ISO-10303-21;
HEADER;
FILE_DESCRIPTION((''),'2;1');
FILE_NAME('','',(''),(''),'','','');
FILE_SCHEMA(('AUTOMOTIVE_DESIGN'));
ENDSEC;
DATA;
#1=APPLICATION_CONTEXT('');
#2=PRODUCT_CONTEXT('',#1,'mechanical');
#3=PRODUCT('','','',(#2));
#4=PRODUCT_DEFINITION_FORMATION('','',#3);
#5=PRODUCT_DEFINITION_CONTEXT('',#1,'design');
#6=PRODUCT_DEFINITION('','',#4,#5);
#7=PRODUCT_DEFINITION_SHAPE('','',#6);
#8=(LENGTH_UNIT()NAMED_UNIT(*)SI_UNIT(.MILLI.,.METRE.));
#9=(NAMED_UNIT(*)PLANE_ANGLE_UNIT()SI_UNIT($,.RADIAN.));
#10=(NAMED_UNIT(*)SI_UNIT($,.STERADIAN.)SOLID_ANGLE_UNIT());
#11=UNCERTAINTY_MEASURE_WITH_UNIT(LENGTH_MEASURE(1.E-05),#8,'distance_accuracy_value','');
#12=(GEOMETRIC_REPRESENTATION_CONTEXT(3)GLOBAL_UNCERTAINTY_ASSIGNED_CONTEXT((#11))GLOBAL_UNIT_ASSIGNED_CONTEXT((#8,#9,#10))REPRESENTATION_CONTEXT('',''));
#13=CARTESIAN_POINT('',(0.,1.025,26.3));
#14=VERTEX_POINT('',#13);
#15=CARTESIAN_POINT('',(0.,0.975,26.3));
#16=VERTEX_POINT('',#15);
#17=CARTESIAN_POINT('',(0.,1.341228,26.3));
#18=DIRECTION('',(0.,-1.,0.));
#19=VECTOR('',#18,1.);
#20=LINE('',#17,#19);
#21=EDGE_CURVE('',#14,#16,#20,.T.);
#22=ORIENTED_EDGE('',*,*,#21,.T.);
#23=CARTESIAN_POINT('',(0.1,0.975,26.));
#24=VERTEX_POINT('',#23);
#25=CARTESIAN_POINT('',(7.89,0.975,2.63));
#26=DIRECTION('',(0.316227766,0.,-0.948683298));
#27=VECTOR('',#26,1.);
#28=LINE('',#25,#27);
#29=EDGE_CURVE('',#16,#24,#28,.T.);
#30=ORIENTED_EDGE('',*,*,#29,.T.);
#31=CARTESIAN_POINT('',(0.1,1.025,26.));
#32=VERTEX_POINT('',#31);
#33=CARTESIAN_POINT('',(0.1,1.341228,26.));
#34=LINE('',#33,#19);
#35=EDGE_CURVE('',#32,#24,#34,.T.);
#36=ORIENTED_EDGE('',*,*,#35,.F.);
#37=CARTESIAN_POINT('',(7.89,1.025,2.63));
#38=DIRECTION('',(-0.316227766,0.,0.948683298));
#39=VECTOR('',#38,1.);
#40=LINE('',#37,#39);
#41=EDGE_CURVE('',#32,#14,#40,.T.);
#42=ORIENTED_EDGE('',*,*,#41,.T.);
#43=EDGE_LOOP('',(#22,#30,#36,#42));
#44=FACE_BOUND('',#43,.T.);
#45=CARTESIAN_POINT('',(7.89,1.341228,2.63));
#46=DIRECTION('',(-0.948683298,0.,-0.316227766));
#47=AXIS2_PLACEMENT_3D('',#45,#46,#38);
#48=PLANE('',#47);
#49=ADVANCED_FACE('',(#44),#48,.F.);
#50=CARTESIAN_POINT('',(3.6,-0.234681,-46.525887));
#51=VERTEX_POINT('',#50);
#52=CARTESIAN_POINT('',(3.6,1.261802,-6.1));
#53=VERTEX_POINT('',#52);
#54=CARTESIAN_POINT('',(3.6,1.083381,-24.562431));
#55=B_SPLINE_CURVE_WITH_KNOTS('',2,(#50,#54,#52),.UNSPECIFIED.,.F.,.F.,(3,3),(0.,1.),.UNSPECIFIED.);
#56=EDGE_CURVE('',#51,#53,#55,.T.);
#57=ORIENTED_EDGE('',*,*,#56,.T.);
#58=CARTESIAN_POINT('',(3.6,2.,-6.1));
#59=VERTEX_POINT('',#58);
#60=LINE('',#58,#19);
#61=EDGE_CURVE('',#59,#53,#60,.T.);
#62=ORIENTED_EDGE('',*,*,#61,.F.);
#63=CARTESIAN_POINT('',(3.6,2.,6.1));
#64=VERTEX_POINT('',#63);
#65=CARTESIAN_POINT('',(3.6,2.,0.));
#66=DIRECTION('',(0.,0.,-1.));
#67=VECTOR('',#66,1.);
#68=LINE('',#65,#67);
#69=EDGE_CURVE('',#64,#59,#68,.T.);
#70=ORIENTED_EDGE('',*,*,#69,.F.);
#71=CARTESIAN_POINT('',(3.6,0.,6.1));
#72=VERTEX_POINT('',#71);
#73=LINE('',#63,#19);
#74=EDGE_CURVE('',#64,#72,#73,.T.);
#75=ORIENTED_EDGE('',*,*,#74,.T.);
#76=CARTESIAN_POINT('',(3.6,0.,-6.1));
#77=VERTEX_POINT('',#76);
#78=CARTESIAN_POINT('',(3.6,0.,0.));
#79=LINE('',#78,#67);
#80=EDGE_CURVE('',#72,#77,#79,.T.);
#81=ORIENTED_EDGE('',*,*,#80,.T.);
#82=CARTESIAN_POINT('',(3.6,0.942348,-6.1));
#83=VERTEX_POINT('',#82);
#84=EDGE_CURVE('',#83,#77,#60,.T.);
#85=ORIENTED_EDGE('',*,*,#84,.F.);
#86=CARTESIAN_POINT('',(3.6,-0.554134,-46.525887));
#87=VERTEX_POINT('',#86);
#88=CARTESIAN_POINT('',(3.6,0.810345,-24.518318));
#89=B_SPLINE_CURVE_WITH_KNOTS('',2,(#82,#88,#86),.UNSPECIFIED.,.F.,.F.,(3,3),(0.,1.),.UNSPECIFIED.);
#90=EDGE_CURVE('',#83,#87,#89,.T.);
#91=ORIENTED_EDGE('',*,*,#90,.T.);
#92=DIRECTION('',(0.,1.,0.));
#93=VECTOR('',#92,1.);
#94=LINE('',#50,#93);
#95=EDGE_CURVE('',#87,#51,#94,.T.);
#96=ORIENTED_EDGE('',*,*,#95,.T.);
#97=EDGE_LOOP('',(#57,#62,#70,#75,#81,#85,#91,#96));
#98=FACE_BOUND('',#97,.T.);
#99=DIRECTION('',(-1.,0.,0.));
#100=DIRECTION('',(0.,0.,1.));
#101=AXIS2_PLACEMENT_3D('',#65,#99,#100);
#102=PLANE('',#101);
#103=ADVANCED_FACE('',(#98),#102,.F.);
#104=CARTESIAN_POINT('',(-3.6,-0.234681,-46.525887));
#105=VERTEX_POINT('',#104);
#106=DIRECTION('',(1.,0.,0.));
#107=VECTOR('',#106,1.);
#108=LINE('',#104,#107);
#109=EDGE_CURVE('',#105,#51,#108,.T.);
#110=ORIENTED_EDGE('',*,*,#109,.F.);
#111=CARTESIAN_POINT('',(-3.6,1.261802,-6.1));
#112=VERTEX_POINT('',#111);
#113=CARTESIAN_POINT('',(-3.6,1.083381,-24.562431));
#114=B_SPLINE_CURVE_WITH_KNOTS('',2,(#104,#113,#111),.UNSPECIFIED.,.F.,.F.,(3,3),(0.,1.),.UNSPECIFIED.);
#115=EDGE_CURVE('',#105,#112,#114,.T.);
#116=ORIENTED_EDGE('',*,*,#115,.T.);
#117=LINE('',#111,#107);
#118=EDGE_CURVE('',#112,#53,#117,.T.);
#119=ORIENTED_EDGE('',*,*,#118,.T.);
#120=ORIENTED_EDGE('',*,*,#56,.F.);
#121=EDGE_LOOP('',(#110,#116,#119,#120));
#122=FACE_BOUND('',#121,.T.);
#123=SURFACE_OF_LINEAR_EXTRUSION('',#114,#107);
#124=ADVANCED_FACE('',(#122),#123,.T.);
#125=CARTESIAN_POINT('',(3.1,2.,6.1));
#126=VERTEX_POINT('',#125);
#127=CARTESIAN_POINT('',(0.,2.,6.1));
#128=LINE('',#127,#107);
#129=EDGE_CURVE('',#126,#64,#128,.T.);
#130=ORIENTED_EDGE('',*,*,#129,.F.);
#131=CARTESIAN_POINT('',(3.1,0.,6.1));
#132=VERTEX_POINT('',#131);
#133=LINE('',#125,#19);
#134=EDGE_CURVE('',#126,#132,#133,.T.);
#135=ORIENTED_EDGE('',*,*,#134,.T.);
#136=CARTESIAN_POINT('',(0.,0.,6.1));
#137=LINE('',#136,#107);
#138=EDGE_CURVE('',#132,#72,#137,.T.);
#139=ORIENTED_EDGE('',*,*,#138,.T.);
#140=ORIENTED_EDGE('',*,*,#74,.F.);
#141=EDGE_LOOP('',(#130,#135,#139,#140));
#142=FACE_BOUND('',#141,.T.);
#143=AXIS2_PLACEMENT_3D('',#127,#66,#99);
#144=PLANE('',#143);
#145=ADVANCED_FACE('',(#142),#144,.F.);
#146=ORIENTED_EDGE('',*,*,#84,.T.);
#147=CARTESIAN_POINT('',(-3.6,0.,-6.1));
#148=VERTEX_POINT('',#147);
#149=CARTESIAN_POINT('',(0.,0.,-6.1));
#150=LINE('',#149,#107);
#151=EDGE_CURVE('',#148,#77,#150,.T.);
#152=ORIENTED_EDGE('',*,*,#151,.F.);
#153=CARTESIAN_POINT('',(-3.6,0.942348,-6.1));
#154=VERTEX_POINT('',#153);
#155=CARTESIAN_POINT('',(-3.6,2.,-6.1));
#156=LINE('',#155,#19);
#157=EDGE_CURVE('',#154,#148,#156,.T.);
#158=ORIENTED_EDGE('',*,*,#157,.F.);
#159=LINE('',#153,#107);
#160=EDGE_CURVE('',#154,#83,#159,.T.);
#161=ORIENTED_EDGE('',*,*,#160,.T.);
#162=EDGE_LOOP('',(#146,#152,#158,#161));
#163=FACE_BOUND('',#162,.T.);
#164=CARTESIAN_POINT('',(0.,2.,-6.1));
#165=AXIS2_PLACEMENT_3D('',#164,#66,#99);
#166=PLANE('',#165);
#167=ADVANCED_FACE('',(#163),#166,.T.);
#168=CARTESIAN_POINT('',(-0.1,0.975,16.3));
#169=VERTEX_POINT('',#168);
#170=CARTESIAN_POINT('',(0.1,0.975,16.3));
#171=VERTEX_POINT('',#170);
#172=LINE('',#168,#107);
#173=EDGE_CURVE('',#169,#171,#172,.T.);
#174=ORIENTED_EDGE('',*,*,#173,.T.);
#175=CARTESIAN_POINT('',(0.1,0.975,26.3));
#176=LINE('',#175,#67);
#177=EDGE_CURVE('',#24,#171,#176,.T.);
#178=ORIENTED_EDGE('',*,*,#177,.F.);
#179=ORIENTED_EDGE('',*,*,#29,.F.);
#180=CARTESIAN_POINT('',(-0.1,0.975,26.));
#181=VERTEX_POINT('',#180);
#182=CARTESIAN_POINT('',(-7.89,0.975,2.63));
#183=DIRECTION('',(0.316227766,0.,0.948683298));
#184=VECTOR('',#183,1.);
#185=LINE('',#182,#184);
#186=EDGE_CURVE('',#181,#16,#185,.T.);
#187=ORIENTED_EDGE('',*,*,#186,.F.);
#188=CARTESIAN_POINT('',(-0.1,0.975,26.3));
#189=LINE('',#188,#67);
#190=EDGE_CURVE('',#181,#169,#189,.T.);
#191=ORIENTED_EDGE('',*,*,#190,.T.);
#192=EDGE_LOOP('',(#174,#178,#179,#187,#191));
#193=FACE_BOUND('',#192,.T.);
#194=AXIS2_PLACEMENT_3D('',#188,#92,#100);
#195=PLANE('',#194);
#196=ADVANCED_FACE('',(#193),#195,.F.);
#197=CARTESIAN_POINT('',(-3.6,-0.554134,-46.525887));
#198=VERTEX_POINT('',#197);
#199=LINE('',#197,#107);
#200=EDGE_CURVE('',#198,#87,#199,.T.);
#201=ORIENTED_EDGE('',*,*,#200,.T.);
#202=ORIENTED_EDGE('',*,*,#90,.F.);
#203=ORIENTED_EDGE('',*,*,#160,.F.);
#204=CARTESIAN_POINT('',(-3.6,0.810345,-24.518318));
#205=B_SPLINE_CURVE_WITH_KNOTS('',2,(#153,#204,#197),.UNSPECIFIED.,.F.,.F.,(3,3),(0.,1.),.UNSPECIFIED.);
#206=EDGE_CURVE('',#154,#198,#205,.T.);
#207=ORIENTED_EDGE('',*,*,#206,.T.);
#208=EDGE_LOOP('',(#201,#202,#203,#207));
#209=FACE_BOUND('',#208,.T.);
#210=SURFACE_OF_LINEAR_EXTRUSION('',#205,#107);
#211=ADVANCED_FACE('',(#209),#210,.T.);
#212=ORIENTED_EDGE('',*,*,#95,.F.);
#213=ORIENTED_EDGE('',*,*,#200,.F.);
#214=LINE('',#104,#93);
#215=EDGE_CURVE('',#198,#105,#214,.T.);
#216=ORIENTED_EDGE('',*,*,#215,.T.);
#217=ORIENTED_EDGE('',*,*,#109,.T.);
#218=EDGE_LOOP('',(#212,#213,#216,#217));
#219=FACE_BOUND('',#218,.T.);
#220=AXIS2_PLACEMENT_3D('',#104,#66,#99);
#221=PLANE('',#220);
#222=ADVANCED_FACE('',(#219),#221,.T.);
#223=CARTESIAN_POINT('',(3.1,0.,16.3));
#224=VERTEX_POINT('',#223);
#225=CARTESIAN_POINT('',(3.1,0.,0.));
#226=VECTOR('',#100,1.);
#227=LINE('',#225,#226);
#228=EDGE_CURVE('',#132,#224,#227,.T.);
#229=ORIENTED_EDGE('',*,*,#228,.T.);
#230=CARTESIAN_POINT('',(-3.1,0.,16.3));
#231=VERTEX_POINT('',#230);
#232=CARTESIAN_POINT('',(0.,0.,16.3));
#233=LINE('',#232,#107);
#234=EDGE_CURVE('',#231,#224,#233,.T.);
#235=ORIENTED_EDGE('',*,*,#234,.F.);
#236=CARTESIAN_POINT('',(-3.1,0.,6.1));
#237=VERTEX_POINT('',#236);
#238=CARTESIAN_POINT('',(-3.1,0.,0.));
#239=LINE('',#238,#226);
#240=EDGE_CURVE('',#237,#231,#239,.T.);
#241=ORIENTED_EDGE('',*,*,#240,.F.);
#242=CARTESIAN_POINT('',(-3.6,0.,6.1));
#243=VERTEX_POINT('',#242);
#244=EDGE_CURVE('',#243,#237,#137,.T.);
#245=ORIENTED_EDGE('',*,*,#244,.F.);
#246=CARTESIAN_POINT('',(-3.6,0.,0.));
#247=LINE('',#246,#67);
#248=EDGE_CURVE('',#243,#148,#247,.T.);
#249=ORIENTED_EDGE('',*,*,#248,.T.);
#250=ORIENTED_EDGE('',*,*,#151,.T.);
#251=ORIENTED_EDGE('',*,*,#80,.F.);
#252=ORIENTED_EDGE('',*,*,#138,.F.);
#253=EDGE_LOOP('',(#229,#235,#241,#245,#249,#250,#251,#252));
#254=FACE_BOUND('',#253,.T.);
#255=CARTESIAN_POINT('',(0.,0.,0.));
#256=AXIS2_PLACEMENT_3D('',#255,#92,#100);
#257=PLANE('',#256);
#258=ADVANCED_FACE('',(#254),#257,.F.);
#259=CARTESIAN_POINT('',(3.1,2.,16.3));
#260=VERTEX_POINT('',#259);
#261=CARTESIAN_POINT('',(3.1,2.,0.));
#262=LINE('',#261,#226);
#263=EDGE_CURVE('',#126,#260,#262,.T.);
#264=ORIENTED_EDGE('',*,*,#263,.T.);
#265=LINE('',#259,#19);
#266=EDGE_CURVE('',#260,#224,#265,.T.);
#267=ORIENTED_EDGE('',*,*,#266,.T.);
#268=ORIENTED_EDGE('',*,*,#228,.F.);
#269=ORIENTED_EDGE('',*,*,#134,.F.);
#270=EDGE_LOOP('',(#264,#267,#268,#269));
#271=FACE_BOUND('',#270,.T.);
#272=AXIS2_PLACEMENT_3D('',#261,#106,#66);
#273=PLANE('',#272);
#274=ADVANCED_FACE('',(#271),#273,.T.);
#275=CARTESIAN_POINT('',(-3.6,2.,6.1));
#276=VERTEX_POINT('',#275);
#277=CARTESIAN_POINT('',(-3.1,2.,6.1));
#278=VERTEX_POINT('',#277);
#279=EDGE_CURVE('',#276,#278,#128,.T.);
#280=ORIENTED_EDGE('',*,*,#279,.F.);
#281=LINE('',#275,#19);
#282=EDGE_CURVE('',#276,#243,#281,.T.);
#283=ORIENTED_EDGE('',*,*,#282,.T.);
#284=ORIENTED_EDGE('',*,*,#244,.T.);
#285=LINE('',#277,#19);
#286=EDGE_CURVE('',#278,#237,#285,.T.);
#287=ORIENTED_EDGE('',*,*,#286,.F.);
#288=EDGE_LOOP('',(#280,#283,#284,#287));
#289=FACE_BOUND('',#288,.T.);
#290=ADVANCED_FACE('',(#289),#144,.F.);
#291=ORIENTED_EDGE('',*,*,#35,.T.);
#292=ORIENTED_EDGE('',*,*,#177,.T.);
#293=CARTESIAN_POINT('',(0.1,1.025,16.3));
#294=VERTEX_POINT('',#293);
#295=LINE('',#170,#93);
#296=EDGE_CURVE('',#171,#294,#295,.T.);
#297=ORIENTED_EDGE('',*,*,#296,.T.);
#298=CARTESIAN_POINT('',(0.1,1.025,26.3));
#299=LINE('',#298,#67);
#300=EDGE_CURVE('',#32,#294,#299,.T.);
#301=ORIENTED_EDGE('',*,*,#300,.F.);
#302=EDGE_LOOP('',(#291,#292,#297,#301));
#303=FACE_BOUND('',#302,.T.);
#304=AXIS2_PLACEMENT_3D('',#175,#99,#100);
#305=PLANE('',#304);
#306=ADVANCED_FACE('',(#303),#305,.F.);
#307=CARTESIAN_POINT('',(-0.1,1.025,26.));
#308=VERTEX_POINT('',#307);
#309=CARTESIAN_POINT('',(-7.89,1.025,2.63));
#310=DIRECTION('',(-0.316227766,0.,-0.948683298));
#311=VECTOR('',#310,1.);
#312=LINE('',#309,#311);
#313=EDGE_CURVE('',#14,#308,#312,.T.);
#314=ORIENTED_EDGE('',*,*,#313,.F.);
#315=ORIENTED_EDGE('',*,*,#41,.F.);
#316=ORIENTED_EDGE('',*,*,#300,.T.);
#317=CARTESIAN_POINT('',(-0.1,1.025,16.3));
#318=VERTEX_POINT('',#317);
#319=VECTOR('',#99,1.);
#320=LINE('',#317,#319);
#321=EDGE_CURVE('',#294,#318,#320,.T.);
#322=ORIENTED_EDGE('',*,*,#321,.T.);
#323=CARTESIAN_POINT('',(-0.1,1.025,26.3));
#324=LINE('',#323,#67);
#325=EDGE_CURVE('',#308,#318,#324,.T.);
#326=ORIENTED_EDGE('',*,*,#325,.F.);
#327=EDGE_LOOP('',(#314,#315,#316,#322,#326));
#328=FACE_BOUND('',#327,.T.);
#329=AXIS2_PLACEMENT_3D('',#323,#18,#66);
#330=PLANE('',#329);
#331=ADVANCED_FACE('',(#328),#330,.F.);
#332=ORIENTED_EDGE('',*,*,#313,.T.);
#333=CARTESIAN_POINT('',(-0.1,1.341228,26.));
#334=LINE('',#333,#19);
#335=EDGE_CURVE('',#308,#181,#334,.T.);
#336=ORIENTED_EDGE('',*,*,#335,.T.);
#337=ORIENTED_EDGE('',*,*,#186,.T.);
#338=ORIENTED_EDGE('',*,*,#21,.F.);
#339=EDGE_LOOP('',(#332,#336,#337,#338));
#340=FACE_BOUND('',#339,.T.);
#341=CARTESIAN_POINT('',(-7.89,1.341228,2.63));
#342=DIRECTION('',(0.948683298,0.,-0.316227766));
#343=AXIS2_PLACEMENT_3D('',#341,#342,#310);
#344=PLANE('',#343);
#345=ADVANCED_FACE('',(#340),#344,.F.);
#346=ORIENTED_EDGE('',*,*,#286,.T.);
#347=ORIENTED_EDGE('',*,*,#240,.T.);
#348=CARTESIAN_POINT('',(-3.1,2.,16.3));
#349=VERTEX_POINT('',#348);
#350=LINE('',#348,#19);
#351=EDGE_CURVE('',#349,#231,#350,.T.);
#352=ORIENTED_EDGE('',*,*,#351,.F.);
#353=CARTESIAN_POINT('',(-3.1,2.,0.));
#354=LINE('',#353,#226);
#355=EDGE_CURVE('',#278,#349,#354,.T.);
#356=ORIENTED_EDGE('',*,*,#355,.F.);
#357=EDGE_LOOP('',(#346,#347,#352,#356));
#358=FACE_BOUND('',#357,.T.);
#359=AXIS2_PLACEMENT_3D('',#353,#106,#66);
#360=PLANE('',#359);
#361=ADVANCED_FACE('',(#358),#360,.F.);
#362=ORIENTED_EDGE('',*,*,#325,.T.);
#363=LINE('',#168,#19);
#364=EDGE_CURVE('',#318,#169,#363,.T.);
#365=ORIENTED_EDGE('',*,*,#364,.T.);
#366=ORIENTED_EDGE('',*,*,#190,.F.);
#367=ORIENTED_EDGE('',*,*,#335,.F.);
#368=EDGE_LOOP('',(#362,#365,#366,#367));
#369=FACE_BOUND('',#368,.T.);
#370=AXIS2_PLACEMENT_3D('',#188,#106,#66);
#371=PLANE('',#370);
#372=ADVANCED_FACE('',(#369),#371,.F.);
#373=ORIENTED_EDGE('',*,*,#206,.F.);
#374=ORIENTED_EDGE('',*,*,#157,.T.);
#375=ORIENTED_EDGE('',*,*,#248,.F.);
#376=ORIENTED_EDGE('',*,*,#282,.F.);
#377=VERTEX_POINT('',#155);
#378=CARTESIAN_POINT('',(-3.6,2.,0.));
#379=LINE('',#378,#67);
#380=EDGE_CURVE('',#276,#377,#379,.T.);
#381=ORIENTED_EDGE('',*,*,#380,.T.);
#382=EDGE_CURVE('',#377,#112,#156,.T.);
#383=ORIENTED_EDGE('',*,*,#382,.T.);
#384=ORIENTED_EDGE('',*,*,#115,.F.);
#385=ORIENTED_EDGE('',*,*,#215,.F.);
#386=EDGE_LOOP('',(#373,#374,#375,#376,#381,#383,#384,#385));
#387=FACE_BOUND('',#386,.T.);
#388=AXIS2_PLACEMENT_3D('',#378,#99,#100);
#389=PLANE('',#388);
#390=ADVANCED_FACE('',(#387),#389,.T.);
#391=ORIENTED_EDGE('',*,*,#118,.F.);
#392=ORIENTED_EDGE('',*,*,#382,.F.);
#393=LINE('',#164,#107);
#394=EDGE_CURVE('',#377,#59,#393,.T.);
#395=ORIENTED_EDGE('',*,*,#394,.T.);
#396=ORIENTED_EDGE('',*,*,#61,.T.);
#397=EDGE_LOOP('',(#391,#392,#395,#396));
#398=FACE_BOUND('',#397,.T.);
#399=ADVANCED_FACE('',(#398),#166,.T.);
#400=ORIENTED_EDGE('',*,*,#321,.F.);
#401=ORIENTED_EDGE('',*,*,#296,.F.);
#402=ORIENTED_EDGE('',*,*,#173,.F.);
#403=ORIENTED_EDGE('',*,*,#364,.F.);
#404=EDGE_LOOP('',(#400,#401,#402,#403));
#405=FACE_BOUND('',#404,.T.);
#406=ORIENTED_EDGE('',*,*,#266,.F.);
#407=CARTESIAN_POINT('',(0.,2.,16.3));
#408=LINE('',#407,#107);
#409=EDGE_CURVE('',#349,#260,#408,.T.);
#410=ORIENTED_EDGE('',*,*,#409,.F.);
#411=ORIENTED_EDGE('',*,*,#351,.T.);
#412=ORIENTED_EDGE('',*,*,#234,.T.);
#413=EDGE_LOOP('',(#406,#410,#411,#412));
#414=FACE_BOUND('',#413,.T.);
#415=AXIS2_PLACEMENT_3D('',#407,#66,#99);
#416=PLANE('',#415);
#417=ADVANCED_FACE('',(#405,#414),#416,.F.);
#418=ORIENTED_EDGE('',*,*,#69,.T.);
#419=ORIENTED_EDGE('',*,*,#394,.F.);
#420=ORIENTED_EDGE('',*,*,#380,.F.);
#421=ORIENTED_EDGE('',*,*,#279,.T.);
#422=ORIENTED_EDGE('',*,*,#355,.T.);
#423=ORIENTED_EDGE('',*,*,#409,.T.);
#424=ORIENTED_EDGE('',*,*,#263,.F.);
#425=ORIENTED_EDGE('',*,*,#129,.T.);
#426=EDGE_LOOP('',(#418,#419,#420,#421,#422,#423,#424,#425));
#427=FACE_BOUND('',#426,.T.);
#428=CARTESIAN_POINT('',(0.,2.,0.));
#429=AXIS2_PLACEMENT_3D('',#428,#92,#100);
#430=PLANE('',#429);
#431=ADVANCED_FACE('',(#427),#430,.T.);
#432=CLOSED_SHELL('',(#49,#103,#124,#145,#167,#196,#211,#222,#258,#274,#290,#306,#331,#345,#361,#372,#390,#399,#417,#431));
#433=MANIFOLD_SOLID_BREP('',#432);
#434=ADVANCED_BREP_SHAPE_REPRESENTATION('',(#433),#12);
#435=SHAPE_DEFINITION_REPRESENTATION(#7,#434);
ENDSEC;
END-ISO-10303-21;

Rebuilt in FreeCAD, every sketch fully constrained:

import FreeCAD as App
import Part
import Sketcher

V = App.Vector
Q = App.Units.Quantity


def add_polygon(sketch, points):
    """Adds a closed chain of lines whose ends are joined by coincident constraints."""
    first, n = sketch.GeometryCount, len(points)
    for a, b in zip(points, points[1:] + points[:1]):
        sketch.addGeometry(Part.LineSegment(App.Vector(*a, 0), App.Vector(*b, 0)), False)
    for i in range(n):
        sketch.addConstraint(Sketcher.Constraint("Coincident", first + i, 2, first + (i + 1) % n, 1))

doc = App.newDocument("Part")
body = doc.addObject("PartDesign::Body", "Body")

# Sketch on XZ plane
sketch1 = doc.addObject("Sketcher::SketchObject", "Sketch")
body.addObject(sketch1)
sketch1.AttachmentSupport = (doc.XZ_Plane, [""])
sketch1.MapMode = "FlatFace"
add_polygon(sketch1, [(-3.6, 6.1), (-3.1, 6.1), (-3.1, 16.3), (3.1, 16.3), (3.1, 6.1), (3.6, 6.1), (3.6, -6.1), (-3.6, -6.1)])  # lines 0-7
sketch1.addConstraint([
    Sketcher.Constraint("Horizontal", 0),
    Sketcher.Constraint("Vertical", 1),
    Sketcher.Constraint("Horizontal", 2),
    Sketcher.Constraint("Vertical", 3),
    Sketcher.Constraint("Horizontal", 4),
    Sketcher.Constraint("Vertical", 5),
    Sketcher.Constraint("Horizontal", 6),
    Sketcher.Constraint("Vertical", 7),
    Sketcher.Constraint("Symmetric", 4, 2, 6, 2, -1, 1),
    Sketcher.Constraint("Symmetric", 0, 2, 3, 2, -2),
    Sketcher.Constraint("DistanceX", 0, 1, 0, 2, Q("0.5 mm")),
    Sketcher.Constraint("DistanceX", 2, 1, 2, 2, Q("6.2 mm")),
    Sketcher.Constraint("DistanceY", 1, 1, 1, 2, Q("10.2 mm")),
    Sketcher.Constraint("DistanceY", 5, 2, 5, 1, Q("12.2 mm")),
])
pad1 = doc.addObject("PartDesign::Pad", "Pad")
body.addObject(pad1)
pad1.Profile = sketch1
pad1.Length = 2
pad1.Reversed = True

# Sketch on XY plane
sketch2 = doc.addObject("Sketcher::SketchObject", "Sketch001")
body.addObject(sketch2)
sketch2.AttachmentSupport = (doc.XY_Plane, [""])
sketch2.MapMode = "FlatFace"
sketch2.AttachmentOffset = App.Placement(V(0, 0, 16.3), App.Rotation())
add_polygon(sketch2, [(-0.1, 1.025), (-0.1, 0.975), (0.1, 0.975), (0.1, 1.025)])  # lines 0-3
sketch2.addConstraint([
    Sketcher.Constraint("Vertical", 0),
    Sketcher.Constraint("Horizontal", 1),
    Sketcher.Constraint("Vertical", 2),
    Sketcher.Constraint("Horizontal", 3),
    Sketcher.Constraint("DistanceX", 1, 1, 1, 2, Q("0.2 mm")),
    Sketcher.Constraint("DistanceY", 0, 2, 0, 1, Q("0.05 mm")),
    Sketcher.Constraint("DistanceX", 0, 2, -1, 1, Q("0.1 mm")),
    Sketcher.Constraint("DistanceY", -1, 1, 0, 2, Q("0.975 mm")),
])
pad2 = doc.addObject("PartDesign::Pad", "Pad001")
body.addObject(pad2)
pad2.Profile = sketch2
pad2.Length = 10

# Sketch on XZ plane
sketch3 = doc.addObject("Sketcher::SketchObject", "Sketch002")
body.addObject(sketch3)
sketch3.AttachmentSupport = (doc.XZ_Plane, [""])
sketch3.MapMode = "FlatFace"
sketch3.AttachmentOffset = App.Placement(V(0, 0, -0.975), App.Rotation())
add_polygon(sketch3, [(0.1, 26.3), (0, 26.3), (0.1, 26)])  # lines 0-2
add_polygon(sketch3, [(-0.1, 26.3), (-0.1, 26), (0, 26.3)])  # lines 3-5
sketch3.addConstraint([
    Sketcher.Constraint("Horizontal", 0),
    Sketcher.Constraint("Vertical", 2),
    Sketcher.Constraint("Vertical", 3),
    Sketcher.Constraint("Horizontal", 5),
    Sketcher.Constraint("Coincident", 4, 2, 0, 2),
    Sketcher.Constraint("Symmetric", 1, 2, 3, 2, -2),
    Sketcher.Constraint("PointOnObject", 0, 2, -2),
    Sketcher.Constraint("DistanceX", 0, 2, 0, 1, Q("0.1 mm")),
    Sketcher.Constraint("DistanceY", 2, 1, 2, 2, Q("0.3 mm")),
    Sketcher.Constraint("DistanceY", -1, 1, 1, 2, Q("26 mm")),
])
pocket1 = doc.addObject("PartDesign::Pocket", "Pocket")
body.addObject(pocket1)
pocket1.Profile = sketch3
pocket1.Length = 0.05

# Sketch on YZ plane
sketch4 = doc.addObject("Sketcher::SketchObject", "Sketch003")
body.addObject(sketch4)
sketch4.AttachmentSupport = (doc.YZ_Plane, [""])
sketch4.MapMode = "FlatFace"
sketch4.AttachmentOffset = App.Placement(V(0, 0, 3.6), App.Rotation())
sketch4.addGeometry([
    Part.LineSegment(V(1.261802, -6.1, 0), V(0.942348, -6.1, 0)),
    Part.BSplineCurve([V(0.942348, -6.1, 0), V(0.810345, -24.518318, 0), V(-0.554134, -46.525887, 0)], [3, 3], [0, 1], False, 2, [1, 1, 1], False),
    Part.LineSegment(V(-0.554134, -46.525887, 0), V(-0.234681, -46.525887, 0)),
    Part.BSplineCurve([V(1.261802, -6.1, 0), V(1.083381, -24.562431, 0), V(-0.234681, -46.525887, 0)], [3, 3], [0, 1], False, 2, [1, 1, 1], False),
], False)
sketch4.addConstraint([
    Sketcher.Constraint("Block", 1),
    Sketcher.Constraint("Block", 3),
    Sketcher.Constraint("Coincident", 0, 2, 1, 1),
    Sketcher.Constraint("Coincident", 1, 2, 2, 1),
    Sketcher.Constraint("Coincident", 2, 2, 3, 2),
    Sketcher.Constraint("Coincident", 3, 1, 0, 1),
])
pad3 = doc.addObject("PartDesign::Pad", "Pad002")
body.addObject(pad3)
pad3.Profile = sketch4
pad3.Length = 7.2
pad3.Reversed = True

doc.recompute()
